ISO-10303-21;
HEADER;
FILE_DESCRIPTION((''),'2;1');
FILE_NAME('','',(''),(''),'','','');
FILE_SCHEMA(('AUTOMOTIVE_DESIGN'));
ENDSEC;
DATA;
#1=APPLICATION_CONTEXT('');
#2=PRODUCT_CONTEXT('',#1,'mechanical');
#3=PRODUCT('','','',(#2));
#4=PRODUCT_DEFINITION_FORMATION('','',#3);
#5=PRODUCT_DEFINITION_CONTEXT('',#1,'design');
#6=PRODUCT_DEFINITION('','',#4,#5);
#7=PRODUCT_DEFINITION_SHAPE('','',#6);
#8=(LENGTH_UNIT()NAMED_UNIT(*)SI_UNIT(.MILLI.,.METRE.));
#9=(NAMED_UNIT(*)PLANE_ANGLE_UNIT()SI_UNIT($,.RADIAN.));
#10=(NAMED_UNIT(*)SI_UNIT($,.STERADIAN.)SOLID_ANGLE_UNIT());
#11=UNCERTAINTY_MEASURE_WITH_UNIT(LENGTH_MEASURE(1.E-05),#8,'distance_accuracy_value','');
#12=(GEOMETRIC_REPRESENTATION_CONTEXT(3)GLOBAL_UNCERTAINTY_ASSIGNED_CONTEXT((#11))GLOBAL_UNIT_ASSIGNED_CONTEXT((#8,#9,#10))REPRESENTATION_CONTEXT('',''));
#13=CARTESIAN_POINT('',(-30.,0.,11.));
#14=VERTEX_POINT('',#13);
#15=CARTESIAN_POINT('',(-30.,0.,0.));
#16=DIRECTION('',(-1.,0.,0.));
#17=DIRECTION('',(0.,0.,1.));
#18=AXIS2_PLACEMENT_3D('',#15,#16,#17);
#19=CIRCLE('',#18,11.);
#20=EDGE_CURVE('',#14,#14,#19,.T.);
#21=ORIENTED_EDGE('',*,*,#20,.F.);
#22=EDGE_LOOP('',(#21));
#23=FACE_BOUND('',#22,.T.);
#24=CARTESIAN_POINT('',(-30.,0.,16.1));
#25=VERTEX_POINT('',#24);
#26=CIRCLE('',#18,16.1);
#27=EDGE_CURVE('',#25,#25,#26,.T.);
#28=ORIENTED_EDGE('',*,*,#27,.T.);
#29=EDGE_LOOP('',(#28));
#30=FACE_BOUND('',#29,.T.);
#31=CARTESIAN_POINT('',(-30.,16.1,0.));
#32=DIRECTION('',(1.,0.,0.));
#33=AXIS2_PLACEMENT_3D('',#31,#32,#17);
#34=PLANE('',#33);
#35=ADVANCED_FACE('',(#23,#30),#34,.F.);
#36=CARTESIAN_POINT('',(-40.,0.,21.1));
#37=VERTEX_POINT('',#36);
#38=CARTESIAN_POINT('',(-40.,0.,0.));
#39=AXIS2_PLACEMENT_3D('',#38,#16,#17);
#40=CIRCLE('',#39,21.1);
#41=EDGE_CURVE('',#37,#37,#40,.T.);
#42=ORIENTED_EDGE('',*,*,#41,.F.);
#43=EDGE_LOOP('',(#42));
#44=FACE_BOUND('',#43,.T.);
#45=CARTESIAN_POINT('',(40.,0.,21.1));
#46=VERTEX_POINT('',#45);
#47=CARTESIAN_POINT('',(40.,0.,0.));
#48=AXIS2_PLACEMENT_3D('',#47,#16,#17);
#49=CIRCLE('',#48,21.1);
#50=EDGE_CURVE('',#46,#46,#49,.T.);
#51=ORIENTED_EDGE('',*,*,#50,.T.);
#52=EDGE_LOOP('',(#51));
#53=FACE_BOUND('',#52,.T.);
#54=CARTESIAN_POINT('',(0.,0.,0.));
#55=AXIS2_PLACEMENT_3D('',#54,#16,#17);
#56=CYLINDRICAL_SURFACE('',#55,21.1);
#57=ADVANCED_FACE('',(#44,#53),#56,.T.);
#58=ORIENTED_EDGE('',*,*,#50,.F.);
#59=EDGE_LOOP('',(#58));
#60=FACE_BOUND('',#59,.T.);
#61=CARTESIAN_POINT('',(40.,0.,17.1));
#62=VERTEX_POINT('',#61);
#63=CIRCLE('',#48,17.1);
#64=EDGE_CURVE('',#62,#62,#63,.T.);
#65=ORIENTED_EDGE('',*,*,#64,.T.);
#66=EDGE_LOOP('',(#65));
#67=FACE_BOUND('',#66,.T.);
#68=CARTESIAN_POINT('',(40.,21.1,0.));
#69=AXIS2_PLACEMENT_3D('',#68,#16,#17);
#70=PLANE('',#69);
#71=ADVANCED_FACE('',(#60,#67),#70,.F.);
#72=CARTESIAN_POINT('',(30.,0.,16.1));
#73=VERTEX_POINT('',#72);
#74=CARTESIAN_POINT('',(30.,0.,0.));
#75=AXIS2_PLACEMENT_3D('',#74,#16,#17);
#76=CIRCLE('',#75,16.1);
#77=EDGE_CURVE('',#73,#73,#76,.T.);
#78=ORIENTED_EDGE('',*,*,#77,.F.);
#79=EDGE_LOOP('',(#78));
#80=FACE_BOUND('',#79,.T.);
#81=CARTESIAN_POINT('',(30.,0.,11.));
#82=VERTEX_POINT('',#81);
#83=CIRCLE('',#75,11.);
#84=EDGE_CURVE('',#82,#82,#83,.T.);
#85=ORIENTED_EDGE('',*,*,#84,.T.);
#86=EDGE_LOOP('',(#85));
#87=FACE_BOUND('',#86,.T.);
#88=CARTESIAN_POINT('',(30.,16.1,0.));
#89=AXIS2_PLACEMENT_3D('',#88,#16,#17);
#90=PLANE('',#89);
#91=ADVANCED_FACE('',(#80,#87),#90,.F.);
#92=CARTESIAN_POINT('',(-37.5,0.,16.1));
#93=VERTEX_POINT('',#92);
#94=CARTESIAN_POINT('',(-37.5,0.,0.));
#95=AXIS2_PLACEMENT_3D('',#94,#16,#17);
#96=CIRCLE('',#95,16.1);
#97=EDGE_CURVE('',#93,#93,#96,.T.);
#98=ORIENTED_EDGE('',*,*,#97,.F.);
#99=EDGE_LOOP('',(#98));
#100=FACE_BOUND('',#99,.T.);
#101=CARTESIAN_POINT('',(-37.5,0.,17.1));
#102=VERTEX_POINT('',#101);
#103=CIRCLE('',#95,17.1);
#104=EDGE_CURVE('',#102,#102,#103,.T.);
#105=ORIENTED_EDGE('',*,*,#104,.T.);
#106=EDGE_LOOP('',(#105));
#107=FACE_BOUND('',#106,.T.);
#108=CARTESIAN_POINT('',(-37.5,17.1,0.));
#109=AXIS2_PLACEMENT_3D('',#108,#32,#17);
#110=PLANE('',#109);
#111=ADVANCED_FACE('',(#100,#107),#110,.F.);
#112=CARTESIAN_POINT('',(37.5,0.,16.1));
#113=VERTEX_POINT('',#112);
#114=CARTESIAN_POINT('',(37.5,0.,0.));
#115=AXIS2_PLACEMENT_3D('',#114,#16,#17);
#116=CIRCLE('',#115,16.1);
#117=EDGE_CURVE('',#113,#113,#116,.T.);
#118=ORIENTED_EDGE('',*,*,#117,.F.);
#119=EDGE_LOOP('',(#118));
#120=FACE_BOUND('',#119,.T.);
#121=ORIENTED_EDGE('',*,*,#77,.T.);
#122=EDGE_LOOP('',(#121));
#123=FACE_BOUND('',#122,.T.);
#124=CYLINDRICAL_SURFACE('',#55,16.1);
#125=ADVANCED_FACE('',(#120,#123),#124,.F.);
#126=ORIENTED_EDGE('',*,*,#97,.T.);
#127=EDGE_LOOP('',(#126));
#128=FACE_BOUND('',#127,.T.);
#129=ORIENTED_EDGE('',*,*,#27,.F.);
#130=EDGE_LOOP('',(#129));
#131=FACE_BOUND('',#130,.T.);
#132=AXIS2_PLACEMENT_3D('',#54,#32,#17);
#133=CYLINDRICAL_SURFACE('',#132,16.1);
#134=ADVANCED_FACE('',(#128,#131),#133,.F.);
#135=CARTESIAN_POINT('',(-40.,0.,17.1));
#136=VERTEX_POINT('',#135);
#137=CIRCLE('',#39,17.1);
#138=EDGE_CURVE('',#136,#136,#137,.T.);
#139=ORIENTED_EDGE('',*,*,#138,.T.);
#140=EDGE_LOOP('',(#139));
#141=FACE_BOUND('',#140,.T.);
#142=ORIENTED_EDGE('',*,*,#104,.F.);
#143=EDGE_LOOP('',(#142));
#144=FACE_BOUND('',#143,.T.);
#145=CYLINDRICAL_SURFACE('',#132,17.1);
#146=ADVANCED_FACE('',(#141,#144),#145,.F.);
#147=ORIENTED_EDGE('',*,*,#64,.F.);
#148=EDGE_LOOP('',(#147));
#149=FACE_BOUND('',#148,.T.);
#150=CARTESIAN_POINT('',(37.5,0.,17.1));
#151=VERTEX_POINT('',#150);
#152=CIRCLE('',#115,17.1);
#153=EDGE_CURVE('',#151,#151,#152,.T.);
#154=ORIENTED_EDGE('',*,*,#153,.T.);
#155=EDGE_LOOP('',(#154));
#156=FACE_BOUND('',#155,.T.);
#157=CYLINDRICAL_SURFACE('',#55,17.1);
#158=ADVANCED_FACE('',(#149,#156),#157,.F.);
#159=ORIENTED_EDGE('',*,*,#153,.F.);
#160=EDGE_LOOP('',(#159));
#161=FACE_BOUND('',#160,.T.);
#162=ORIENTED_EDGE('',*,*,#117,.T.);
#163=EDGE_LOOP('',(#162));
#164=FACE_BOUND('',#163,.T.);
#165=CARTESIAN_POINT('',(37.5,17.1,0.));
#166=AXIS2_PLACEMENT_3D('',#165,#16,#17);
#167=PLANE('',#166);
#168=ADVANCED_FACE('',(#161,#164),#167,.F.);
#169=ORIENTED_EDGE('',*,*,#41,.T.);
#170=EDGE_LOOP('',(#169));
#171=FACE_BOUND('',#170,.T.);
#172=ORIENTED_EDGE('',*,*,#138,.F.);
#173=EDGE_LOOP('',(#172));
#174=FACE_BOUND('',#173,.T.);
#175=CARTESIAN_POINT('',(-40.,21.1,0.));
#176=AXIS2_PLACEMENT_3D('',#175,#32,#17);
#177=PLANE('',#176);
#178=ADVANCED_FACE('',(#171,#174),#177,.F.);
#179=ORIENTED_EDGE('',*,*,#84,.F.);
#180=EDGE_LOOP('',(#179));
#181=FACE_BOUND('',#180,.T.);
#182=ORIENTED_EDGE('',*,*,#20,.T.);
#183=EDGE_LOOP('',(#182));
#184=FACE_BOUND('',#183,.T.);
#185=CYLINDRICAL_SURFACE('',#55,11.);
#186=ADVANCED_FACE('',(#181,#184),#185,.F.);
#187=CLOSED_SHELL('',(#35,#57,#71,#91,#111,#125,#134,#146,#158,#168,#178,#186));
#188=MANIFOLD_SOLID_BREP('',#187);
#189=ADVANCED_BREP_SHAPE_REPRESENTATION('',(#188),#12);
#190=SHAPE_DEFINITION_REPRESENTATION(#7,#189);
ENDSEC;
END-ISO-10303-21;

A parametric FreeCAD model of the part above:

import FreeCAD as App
import Part
import Sketcher

V = App.Vector

doc = App.newDocument("Part")
body = doc.addObject("PartDesign::Body", "Body")

sketch1 = body.newObject("Sketcher::SketchObject", "Sketch")
sketch1.AttachmentSupport = (doc.getObject("XY_Plane"), [""])
sketch1.MapMode = "FlatFace"
sketch1.addGeometry(Part.LineSegment(V(40, 21.1, 0), V(0, 21.1, 0)), False)
sketch1.addGeometry(Part.LineSegment(V(0, 21.1, 0), V(0, 11, 0)), False)
sketch1.addGeometry(Part.LineSegment(V(0, 11, 0), V(30, 11, 0)), False)
sketch1.addGeometry(Part.LineSegment(V(30, 11, 0), V(30, 16.1, 0)), False)
sketch1.addGeometry(Part.LineSegment(V(30, 16.1, 0), V(37.5, 16.1, 0)), False)
sketch1.addGeometry(Part.LineSegment(V(37.5, 16.1, 0), V(37.5, 17.1, 0)), False)
sketch1.addGeometry(Part.LineSegment(V(37.5, 17.1, 0), V(40, 17.1, 0)), False)
sketch1.addGeometry(Part.LineSegment(V(40, 17.1, 0), V(40, 21.1, 0)), False)
sketch1.addConstraint(Sketcher.Constraint("Coincident", 0, 2, 1, 1))
sketch1.addConstraint(Sketcher.Constraint("Coincident", 1, 2, 2, 1))
sketch1.addConstraint(Sketcher.Constraint("Coincident", 2, 2, 3, 1))
sketch1.addConstraint(Sketcher.Constraint("Coincident", 3, 2, 4, 1))
sketch1.addConstraint(Sketcher.Constraint("Coincident", 4, 2, 5, 1))
sketch1.addConstraint(Sketcher.Constraint("Coincident", 5, 2, 6, 1))
sketch1.addConstraint(Sketcher.Constraint("Coincident", 6, 2, 7, 1))
sketch1.addConstraint(Sketcher.Constraint("Coincident", 7, 2, 0, 1))
sketch1.addConstraint(Sketcher.Constraint("Horizontal", 0))
sketch1.addConstraint(Sketcher.Constraint("Vertical", 1))
sketch1.addConstraint(Sketcher.Constraint("Horizontal", 2))
sketch1.addConstraint(Sketcher.Constraint("Vertical", 3))
sketch1.addConstraint(Sketcher.Constraint("Horizontal", 4))
sketch1.addConstraint(Sketcher.Constraint("Vertical", 5))
sketch1.addConstraint(Sketcher.Constraint("Horizontal", 6))
sketch1.addConstraint(Sketcher.Constraint("Vertical", 7))
sketch1.addConstraint(Sketcher.Constraint("PointOnObject", 0, 2, -2))
sketch1.addConstraint(Sketcher.Constraint("DistanceX", 0, 2, 0, 1, 40.0))
sketch1.addConstraint(Sketcher.Constraint("DistanceX", 2, 1, 2, 2, 30.0))
sketch1.addConstraint(Sketcher.Constraint("DistanceY", 5, 1, 5, 2, 1.0))
sketch1.addConstraint(Sketcher.Constraint("DistanceY", 7, 1, 7, 2, 4.0))
sketch1.addConstraint(Sketcher.Constraint("DistanceX", 4, 1, 4, 2, 7.5))
sketch1.addConstraint(Sketcher.Constraint("DistanceY", 1, 2, 1, 1, 10.1))
sketch1.addConstraint(Sketcher.Constraint("DistanceY", -1, 1, 1, 2, 11.0))
revolution = body.newObject("PartDesign::Revolution", "Revolution")
revolution.Profile = sketch1
revolution.ReferenceAxis = (sketch1, ["H_Axis"])
revolution.Angle = 360
doc.recompute()

mirrored = body.newObject("PartDesign::Mirrored", "Mirrored")
mirrored.Originals = [revolution]
mirrored.MirrorPlane = (doc.getObject("YZ_Plane"), [""])
body.Tip = mirrored

doc.recompute()
